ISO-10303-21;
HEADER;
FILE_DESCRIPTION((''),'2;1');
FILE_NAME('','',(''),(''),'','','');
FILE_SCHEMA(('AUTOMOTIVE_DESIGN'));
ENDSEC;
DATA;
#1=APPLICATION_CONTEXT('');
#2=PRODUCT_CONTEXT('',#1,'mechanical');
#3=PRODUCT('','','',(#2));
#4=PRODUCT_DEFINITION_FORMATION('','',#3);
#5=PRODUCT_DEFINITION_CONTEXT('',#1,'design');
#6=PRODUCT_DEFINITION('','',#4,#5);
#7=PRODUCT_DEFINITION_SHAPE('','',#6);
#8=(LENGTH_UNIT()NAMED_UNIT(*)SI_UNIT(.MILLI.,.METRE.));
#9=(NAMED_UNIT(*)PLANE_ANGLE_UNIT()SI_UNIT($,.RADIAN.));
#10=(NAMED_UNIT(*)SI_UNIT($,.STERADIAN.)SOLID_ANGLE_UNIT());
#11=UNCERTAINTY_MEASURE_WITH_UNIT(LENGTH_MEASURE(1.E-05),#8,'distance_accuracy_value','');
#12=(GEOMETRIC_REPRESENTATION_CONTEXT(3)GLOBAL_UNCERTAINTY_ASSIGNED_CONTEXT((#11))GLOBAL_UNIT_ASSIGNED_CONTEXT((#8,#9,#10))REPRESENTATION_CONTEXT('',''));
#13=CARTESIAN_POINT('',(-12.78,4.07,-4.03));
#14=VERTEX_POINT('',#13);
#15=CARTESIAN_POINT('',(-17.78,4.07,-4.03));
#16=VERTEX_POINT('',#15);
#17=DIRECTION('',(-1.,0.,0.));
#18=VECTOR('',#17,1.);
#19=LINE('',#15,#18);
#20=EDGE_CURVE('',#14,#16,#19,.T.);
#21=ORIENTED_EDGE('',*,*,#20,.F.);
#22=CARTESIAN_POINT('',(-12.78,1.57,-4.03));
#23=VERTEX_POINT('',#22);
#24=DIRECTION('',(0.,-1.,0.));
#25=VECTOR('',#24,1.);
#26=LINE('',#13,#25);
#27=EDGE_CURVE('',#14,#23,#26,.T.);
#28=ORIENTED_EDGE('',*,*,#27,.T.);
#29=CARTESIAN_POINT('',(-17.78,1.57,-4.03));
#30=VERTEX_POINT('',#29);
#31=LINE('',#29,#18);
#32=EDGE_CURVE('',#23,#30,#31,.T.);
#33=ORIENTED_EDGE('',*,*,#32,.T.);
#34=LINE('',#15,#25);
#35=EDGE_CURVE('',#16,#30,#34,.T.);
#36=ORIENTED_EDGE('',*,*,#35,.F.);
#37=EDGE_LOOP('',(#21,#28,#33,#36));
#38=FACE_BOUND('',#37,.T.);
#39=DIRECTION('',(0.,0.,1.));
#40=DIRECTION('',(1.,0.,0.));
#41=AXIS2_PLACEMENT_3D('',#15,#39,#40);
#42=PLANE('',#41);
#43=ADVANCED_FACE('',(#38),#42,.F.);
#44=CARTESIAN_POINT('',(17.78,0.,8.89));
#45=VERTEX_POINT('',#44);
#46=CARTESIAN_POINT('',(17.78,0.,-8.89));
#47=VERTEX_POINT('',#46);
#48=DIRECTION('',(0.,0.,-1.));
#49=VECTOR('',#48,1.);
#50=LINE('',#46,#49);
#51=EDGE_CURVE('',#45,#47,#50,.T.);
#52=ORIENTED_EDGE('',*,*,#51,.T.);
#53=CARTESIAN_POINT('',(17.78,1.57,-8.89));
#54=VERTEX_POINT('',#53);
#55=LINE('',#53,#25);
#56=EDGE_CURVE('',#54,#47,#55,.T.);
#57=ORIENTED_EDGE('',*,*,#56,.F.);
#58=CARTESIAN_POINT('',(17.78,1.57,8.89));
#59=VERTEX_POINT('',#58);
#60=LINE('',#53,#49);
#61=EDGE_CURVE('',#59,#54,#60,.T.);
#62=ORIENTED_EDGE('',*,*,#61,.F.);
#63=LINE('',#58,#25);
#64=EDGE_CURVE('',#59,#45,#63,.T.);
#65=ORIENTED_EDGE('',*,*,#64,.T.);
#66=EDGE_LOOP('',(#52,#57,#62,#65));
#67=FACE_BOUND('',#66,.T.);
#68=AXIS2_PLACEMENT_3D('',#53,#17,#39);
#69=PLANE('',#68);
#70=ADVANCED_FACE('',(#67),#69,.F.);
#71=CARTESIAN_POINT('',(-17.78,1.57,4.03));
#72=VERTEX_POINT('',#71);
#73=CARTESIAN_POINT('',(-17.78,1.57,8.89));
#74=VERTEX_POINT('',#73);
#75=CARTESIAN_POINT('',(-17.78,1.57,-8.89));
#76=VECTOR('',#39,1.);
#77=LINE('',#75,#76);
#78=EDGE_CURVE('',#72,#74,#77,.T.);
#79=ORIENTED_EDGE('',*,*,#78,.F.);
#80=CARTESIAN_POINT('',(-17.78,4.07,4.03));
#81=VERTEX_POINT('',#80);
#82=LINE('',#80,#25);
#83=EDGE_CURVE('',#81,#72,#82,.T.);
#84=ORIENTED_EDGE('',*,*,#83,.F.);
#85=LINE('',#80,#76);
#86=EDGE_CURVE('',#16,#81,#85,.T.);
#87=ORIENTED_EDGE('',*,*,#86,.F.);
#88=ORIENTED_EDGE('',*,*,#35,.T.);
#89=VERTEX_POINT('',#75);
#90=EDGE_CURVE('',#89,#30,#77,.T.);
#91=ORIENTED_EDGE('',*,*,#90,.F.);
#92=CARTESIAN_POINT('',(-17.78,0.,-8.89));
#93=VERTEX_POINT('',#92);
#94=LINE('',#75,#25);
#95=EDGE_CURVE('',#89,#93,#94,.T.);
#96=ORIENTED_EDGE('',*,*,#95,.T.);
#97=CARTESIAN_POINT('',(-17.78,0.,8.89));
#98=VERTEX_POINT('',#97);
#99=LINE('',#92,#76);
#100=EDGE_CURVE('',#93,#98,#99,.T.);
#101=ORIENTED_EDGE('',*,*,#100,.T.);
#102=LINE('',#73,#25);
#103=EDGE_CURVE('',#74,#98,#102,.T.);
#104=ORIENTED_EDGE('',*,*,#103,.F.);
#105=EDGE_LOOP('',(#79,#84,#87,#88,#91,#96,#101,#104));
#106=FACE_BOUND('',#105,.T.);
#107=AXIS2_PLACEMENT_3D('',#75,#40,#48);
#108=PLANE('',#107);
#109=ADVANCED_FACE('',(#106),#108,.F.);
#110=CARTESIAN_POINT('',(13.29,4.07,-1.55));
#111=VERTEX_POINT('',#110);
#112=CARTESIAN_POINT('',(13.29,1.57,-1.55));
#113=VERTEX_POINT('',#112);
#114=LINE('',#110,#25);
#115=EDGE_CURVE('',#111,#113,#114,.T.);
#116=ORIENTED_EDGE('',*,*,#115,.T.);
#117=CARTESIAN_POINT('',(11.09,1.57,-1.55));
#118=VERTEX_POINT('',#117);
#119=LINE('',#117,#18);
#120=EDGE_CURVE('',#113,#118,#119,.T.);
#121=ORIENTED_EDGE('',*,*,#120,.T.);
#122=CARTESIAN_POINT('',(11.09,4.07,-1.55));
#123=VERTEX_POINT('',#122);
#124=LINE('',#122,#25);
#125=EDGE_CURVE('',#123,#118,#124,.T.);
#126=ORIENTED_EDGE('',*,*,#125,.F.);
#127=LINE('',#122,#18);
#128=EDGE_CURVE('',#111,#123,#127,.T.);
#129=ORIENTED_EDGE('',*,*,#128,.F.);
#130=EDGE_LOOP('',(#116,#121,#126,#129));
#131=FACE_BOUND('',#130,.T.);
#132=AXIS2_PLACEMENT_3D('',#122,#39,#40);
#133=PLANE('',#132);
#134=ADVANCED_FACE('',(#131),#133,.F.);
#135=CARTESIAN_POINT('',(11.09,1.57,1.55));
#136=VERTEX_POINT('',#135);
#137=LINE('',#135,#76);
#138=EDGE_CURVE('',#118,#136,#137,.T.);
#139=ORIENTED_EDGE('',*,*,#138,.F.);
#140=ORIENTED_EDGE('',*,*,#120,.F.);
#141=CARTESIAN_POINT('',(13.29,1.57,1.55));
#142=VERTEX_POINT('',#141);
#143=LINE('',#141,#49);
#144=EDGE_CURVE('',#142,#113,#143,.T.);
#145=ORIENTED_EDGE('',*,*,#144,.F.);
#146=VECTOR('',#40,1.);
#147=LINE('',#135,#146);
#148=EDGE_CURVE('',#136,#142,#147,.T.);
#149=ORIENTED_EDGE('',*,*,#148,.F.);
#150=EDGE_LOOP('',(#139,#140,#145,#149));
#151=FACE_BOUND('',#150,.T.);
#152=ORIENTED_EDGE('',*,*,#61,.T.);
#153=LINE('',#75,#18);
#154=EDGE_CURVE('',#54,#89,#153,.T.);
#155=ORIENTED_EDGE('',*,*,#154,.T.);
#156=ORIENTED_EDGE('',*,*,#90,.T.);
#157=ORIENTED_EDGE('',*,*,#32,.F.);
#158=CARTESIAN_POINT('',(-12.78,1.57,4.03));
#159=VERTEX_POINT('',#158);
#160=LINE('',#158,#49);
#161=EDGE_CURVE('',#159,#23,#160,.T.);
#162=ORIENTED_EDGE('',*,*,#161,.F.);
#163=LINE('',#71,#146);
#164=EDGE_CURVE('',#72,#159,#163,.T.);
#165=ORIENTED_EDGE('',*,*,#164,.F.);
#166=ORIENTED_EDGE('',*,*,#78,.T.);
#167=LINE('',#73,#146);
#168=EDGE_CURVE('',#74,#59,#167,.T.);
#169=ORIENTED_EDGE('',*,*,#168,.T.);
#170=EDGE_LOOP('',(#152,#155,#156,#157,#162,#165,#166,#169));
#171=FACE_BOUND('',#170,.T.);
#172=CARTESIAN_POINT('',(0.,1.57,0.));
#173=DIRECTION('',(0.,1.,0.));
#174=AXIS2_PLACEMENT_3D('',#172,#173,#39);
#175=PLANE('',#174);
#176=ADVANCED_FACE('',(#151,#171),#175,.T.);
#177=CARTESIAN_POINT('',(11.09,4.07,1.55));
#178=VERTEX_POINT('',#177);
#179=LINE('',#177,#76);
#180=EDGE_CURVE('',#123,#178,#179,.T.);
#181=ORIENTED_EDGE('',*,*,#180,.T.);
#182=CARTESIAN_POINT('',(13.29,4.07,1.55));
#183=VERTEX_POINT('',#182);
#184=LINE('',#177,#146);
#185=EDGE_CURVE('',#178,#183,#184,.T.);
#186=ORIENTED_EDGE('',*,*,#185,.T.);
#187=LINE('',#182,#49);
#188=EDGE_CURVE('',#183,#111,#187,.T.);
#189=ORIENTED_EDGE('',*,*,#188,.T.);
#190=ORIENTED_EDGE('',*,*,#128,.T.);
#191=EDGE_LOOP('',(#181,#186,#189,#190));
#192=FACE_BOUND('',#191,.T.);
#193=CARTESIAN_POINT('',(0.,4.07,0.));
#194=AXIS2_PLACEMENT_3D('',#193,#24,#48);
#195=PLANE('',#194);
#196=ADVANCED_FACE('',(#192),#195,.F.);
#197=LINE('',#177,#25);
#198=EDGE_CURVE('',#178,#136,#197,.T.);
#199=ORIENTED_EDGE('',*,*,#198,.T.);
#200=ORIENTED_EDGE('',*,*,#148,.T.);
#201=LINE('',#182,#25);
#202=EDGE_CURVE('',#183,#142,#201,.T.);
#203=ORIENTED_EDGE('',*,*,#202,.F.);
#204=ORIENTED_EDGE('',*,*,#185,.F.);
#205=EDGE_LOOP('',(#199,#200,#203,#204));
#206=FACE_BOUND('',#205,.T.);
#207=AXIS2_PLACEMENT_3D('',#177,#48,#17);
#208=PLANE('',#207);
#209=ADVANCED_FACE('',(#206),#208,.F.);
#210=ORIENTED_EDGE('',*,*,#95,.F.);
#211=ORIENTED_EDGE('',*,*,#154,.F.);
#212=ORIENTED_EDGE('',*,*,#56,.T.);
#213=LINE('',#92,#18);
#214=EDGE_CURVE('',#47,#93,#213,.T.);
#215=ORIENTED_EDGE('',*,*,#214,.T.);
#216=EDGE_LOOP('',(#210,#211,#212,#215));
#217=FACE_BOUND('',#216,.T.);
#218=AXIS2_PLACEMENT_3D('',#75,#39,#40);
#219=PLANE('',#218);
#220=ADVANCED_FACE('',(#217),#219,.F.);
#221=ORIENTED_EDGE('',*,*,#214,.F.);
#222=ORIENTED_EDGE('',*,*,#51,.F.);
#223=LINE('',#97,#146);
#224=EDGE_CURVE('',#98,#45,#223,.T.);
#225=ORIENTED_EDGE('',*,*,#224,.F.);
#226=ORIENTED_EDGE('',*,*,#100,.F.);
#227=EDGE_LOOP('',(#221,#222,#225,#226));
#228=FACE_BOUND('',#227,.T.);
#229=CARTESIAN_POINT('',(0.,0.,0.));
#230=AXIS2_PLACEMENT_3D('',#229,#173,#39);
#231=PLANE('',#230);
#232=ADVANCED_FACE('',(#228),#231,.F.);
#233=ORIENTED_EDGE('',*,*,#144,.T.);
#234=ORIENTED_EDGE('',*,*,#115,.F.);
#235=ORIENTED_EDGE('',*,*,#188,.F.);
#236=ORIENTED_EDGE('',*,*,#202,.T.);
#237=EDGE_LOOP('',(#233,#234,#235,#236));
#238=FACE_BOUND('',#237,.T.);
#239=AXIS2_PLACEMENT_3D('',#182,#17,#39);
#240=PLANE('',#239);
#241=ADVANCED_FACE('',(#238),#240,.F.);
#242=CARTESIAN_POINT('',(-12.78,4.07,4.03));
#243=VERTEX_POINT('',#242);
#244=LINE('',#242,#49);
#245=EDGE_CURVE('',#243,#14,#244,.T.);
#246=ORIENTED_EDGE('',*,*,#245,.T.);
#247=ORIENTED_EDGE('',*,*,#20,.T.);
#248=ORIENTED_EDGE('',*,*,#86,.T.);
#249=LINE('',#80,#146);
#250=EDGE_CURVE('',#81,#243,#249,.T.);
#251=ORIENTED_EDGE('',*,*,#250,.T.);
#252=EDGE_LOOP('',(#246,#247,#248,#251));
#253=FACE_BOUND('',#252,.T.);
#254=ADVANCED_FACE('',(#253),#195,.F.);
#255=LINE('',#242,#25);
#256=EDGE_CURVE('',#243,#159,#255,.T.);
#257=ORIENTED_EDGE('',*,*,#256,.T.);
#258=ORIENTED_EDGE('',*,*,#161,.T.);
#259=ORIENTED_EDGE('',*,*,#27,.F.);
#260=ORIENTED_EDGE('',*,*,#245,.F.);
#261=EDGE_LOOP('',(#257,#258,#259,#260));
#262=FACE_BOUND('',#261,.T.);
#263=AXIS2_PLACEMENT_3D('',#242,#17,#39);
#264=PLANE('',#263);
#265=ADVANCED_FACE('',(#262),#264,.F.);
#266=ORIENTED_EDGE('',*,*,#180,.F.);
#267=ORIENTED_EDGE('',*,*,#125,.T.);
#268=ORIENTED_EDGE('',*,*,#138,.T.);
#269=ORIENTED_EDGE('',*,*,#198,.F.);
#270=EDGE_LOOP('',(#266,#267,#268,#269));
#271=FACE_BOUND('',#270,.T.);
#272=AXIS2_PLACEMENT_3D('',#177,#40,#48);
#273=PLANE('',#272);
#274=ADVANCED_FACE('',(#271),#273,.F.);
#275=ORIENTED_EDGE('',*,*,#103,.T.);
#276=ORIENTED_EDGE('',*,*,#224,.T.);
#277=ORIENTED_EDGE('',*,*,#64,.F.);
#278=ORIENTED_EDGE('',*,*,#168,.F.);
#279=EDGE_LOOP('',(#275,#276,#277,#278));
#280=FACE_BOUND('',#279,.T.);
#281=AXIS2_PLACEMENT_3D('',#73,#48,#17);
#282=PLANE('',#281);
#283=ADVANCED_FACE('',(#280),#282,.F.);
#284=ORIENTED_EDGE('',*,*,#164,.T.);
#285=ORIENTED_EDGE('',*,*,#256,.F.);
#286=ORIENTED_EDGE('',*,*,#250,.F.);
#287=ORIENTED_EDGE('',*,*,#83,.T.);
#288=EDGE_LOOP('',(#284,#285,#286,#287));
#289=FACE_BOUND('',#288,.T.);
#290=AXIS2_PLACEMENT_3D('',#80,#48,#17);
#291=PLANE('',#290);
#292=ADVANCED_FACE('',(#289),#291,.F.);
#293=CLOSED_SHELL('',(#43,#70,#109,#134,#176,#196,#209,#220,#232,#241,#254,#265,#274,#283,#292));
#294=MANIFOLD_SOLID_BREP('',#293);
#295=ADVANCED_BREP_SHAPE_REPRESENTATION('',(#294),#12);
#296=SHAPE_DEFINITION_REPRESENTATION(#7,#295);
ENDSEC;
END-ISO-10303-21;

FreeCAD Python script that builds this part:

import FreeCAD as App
import Part
import Sketcher

V = App.Vector

doc = App.newDocument("Part")
params = doc.addObject("Spreadsheet::Sheet", "Params")
for row, (alias, value) in enumerate([
    ("sketch1_width", "35.56 mm"),
    ("sketch1_height", "17.78 mm"),
    ("pad1_length", "1.57 mm"),
    ("sketch2_width", "5 mm"),
    ("sketch2_height", "8.06 mm"),
    ("pad2_length", "2.5 mm"),
    ("sketch3_width", "2.2 mm"),
    ("sketch3_height", "3.1 mm"),
    ("pad3_length", "2.5 mm"),
], start=1):
    params.set(f"A{row}", alias)
    params.set(f"B{row}", "=" + value)
    params.setAlias(f"B{row}", alias)

body = doc.addObject("PartDesign::Body", "Body")

# Sketch on XZ plane
sketch1 = body.newObject("Sketcher::SketchObject", "Sketch")
sketch1.AttachmentSupport = (doc.getObject("XZ_Plane"), [""])
sketch1.MapMode = "FlatFace"
sketch1.addGeometry(Part.LineSegment(V(-18, -9, 0), V(-18, 9, 0)), False)
sketch1.addGeometry(Part.LineSegment(V(-18, 9, 0), V(18, 9, 0)), False)
sketch1.addGeometry(Part.LineSegment(V(18, 9, 0), V(18, -9, 0)), False)
sketch1.addGeometry(Part.LineSegment(V(18, -9, 0), V(-18, -9, 0)), False)
sketch1.addConstraint(Sketcher.Constraint("Coincident", 0, 2, 1, 1))
sketch1.addConstraint(Sketcher.Constraint("Coincident", 1, 2, 2, 1))
sketch1.addConstraint(Sketcher.Constraint("Coincident", 2, 2, 3, 1))
sketch1.addConstraint(Sketcher.Constraint("Coincident", 3, 2, 0, 1))
sketch1.addConstraint(Sketcher.Constraint("Vertical", 0))
sketch1.addConstraint(Sketcher.Constraint("Horizontal", 1))
sketch1.addConstraint(Sketcher.Constraint("Vertical", 2))
sketch1.addConstraint(Sketcher.Constraint("Horizontal", 3))
sketch1.addConstraint(Sketcher.Constraint("Symmetric", 0, 2, 2, 2, -1, 1))
sketch1.addConstraint(Sketcher.Constraint("DistanceX", 1, 1, 1, 2, 35.56))
sketch1.addConstraint(Sketcher.Constraint("DistanceY", 0, 1, 0, 2, 17.78))
sketch1.setExpression("Constraints[9]", "Params.sketch1_width")
sketch1.setExpression("Constraints[10]", "Params.sketch1_height")
pad1 = body.newObject("PartDesign::Pad", "Pad")
pad1.Profile = sketch1
pad1.setExpression("Length", "Params.pad1_length")
pad1.Reversed = True

# Sketch on XZ plane
sketch2 = body.newObject("Sketcher::SketchObject", "Sketch001")
sketch2.AttachmentSupport = (doc.getObject("XZ_Plane"), [""])
sketch2.MapMode = "FlatFace"
sketch2.AttachmentOffset = App.Placement(V(0, 0, -1.57), App.Rotation())
sketch2.addGeometry(Part.LineSegment(V(-18, -4, 0), V(-18, 4, 0)), False)
sketch2.addGeometry(Part.LineSegment(V(-18, 4, 0), V(-13, 4, 0)), False)
sketch2.addGeometry(Part.LineSegment(V(-13, 4, 0), V(-13, -4, 0)), False)
sketch2.addGeometry(Part.LineSegment(V(-13, -4, 0), V(-18, -4, 0)), False)
sketch2.addConstraint(Sketcher.Constraint("Coincident", 0, 2, 1, 1))
sketch2.addConstraint(Sketcher.Constraint("Coincident", 1, 2, 2, 1))
sketch2.addConstraint(Sketcher.Constraint("Coincident", 2, 2, 3, 1))
sketch2.addConstraint(Sketcher.Constraint("Coincident", 3, 2, 0, 1))
sketch2.addConstraint(Sketcher.Constraint("Vertical", 0))
sketch2.addConstraint(Sketcher.Constraint("Horizontal", 1))
sketch2.addConstraint(Sketcher.Constraint("Vertical", 2))
sketch2.addConstraint(Sketcher.Constraint("Horizontal", 3))
sketch2.addConstraint(Sketcher.Constraint("DistanceX", 1, 1, 1, 2, 5.0))
sketch2.addConstraint(Sketcher.Constraint("DistanceY", 0, 1, 0, 2, 8.06))
sketch2.addConstraint(Sketcher.Constraint("DistanceX", 0, 2, -1, 1, 17.78))
sketch2.addConstraint(Sketcher.Constraint("DistanceY", -1, 1, 0, 2, 4.03))
sketch2.setExpression("Constraints[8]", "Params.sketch2_width")
sketch2.setExpression("Constraints[9]", "Params.sketch2_height")
pad2 = body.newObject("PartDesign::Pad", "Pad001")
pad2.Profile = sketch2
pad2.setExpression("Length", "Params.pad2_length")
pad2.Reversed = True

# Sketch on XZ plane
sketch3 = body.newObject("Sketcher::SketchObject", "Sketch002")
sketch3.AttachmentSupport = (doc.getObject("XZ_Plane"), [""])
sketch3.MapMode = "FlatFace"
sketch3.AttachmentOffset = App.Placement(V(0, 0, -1.57), App.Rotation())
sketch3.addGeometry(Part.LineSegment(V(11.1, -1.6, 0), V(11.1, 1.6, 0)), False)
sketch3.addGeometry(Part.LineSegment(V(11.1, 1.6, 0), V(13.3, 1.6, 0)), False)
sketch3.addGeometry(Part.LineSegment(V(13.3, 1.6, 0), V(13.3, -1.6, 0)), False)
sketch3.addGeometry(Part.LineSegment(V(13.3, -1.6, 0), V(11.1, -1.6, 0)), False)
sketch3.addConstraint(Sketcher.Constraint("Coincident", 0, 2, 1, 1))
sketch3.addConstraint(Sketcher.Constraint("Coincident", 1, 2, 2, 1))
sketch3.addConstraint(Sketcher.Constraint("Coincident", 2, 2, 3, 1))
sketch3.addConstraint(Sketcher.Constraint("Coincident", 3, 2, 0, 1))
sketch3.addConstraint(Sketcher.Constraint("Vertical", 0))
sketch3.addConstraint(Sketcher.Constraint("Horizontal", 1))
sketch3.addConstraint(Sketcher.Constraint("Vertical", 2))
sketch3.addConstraint(Sketcher.Constraint("Horizontal", 3))
sketch3.addConstraint(Sketcher.Constraint("DistanceX", 1, 1, 1, 2, 2.2))
sketch3.addConstraint(Sketcher.Constraint("DistanceY", 0, 1, 0, 2, 3.1))
sketch3.addConstraint(Sketcher.Constraint("DistanceX", -1, 1, 0, 2, 11.09))
sketch3.addConstraint(Sketcher.Constraint("DistanceY", -1, 1, 0, 2, 1.55))
sketch3.setExpression("Constraints[8]", "Params.sketch3_width")
sketch3.setExpression("Constraints[9]", "Params.sketch3_height")
pad3 = body.newObject("PartDesign::Pad", "Pad002")
pad3.Profile = sketch3
pad3.setExpression("Length", "Params.pad3_length")
pad3.Reversed = True

doc.recompute()
